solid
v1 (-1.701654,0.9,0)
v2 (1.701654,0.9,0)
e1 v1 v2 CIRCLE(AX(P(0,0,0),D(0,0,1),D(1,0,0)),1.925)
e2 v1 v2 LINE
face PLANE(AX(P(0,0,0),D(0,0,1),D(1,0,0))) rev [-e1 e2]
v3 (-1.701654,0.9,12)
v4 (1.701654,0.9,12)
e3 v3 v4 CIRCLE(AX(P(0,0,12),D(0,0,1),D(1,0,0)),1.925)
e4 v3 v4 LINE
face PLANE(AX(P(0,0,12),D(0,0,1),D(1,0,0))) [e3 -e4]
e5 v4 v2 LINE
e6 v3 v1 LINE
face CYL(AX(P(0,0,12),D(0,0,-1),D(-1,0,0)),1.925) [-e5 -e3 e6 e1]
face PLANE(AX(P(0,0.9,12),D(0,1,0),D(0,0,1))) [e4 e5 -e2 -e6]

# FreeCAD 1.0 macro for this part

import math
import FreeCAD as App
import Part
import Sketcher

doc = App.newDocument("Part")
params = doc.addObject("Spreadsheet::Sheet", "Params")
for row, (alias, value) in enumerate([
    ("pad1_length", "12 mm"),
], start=1):
    params.set(f"A{row}", alias)
    params.set(f"B{row}", "=" + value)
    params.setAlias(f"B{row}", alias)

body = doc.addObject("PartDesign::Body", "Body")

sketch1 = body.newObject("Sketcher::SketchObject", "Sketch")
sketch1.AttachmentSupport = (doc.getObject("XY_Plane"), [""])
sketch1.MapMode = "FlatFace"
sketch1.addGeometry([
    Part.LineSegment(App.Vector(1.701654, 0.9, 0), App.Vector(-1.701654, 0.9, 0)),
    Part.ArcOfCircle(Part.Circle(App.Vector(0, 0, 0), App.Vector(0, 0, 1), 1.925), math.radians(152.125757), math.radians(360)),
    Part.ArcOfCircle(Part.Circle(App.Vector(0, 0, 0), App.Vector(0, 0, 1), 1.925), math.radians(0), math.radians(27.874242)),
], False)
sketch1.addConstraint([
    Sketcher.Constraint("Coincident", 0, 2, 1, 1),
    Sketcher.Constraint("Tangent", 1, 2, 2, 1),
    Sketcher.Constraint("Coincident", 2, 2, 0, 1),
    Sketcher.Constraint("Horizontal", 0),
    Sketcher.Constraint("Coincident", 1, 3, -1, 1),
    Sketcher.Constraint("Equal", 1, 2),
    Sketcher.Constraint("PointOnObject", 1, 2, -1),
    Sketcher.Constraint("Radius", 1, 1.925),
    Sketcher.Constraint("DistanceY", -1, 1, 0, 2, 0.9),
])
pad1 = body.newObject("PartDesign::Pad", "Pad")
pad1.Profile = sketch1
pad1.setExpression("Length", "Params.pad1_length")

doc.recompute()
